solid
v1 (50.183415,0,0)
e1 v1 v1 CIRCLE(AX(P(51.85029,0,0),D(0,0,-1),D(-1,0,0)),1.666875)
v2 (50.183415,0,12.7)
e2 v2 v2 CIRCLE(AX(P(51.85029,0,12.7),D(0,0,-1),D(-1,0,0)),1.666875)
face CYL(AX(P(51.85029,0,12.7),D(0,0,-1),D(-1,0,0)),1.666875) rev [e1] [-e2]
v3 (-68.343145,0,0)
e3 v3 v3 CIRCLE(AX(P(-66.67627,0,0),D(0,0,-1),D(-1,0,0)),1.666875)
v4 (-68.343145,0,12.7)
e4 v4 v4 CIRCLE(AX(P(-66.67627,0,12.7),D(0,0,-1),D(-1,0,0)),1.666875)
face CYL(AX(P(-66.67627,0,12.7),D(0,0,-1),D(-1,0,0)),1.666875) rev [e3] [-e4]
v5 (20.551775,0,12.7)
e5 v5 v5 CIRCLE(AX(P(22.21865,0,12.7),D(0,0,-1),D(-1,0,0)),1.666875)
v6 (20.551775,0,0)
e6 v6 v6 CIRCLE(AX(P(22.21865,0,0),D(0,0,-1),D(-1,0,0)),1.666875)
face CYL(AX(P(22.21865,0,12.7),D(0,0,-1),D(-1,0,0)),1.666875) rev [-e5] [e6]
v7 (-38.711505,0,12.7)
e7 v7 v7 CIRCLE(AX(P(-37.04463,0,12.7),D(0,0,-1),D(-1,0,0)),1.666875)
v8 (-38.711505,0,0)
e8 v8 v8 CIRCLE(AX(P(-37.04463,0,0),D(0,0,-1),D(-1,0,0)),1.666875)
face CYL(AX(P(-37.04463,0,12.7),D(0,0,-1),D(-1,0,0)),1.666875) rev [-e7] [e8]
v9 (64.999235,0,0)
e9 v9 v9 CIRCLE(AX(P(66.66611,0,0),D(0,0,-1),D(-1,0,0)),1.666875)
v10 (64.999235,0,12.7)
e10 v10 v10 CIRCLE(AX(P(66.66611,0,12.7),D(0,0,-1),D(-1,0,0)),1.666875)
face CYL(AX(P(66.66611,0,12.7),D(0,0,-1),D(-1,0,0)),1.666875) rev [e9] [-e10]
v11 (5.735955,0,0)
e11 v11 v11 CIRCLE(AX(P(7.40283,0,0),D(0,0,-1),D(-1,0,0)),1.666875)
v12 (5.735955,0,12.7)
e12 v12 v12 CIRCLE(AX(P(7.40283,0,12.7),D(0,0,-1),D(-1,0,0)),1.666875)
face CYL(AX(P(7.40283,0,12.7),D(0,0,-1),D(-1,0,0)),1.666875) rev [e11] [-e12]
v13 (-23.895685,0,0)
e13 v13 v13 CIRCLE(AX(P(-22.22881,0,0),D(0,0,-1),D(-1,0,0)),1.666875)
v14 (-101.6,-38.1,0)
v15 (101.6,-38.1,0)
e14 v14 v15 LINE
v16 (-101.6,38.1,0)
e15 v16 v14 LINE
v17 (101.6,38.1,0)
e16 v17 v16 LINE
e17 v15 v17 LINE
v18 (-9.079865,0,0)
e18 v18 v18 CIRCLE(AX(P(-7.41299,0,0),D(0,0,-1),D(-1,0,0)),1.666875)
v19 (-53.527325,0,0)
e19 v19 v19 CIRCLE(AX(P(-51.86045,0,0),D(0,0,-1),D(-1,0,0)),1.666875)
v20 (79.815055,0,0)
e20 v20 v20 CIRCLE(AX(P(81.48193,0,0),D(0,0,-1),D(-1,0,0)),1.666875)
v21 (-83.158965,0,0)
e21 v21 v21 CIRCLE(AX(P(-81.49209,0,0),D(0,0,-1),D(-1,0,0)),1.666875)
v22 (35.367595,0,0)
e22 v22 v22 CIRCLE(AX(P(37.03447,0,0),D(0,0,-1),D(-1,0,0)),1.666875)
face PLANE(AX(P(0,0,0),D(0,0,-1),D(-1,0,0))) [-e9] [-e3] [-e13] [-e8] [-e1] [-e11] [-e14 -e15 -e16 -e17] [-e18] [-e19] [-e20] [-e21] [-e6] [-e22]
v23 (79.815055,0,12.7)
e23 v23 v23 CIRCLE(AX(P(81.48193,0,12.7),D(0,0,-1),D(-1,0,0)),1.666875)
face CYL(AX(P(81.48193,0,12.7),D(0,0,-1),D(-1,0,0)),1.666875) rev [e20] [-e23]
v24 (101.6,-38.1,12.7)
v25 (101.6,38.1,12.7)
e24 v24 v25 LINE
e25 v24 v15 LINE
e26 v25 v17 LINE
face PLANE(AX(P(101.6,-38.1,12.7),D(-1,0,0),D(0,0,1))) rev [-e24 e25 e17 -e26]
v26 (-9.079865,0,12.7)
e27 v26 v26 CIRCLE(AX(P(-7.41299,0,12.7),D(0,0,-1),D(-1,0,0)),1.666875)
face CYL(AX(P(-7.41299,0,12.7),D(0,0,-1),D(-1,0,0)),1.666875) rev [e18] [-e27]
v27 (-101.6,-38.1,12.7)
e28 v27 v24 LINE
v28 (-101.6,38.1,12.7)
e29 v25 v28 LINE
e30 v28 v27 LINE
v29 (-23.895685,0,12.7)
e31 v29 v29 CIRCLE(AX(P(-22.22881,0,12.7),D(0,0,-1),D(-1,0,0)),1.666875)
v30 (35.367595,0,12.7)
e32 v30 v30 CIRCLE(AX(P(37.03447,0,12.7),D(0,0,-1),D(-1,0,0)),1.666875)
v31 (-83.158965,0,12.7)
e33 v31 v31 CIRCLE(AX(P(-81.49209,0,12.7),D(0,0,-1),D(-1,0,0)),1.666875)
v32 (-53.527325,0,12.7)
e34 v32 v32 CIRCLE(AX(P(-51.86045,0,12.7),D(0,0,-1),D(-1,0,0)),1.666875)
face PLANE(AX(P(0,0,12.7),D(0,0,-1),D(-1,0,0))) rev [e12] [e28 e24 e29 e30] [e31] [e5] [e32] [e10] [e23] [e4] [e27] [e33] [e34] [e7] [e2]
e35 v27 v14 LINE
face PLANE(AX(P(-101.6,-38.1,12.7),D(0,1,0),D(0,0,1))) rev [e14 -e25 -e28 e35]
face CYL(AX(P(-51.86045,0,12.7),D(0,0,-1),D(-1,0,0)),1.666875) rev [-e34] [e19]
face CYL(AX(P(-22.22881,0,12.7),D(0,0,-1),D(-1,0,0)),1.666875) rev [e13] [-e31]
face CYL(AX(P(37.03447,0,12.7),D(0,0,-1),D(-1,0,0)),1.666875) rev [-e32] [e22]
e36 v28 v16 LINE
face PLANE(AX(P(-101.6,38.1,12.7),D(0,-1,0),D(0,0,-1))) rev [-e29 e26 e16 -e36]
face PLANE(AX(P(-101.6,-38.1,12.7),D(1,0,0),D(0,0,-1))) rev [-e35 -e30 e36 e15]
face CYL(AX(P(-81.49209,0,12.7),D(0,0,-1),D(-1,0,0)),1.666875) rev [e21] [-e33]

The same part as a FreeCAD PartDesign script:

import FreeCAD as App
import Part
import Sketcher

V = App.Vector
Q = App.Units.Quantity


def add_polygon(sketch, points):
    """Adds a closed chain of lines whose ends are joined by coincident constraints."""
    first, n = sketch.GeometryCount, len(points)
    for a, b in zip(points, points[1:] + points[:1]):
        sketch.addGeometry(Part.LineSegment(App.Vector(*a, 0), App.Vector(*b, 0)), False)
    for i in range(n):
        sketch.addConstraint(Sketcher.Constraint("Coincident", first + i, 2, first + (i + 1) % n, 1))

doc = App.newDocument("Part")
body = doc.addObject("PartDesign::Body", "Body")

sketch1 = body.newObject("Sketcher::SketchObject", "Sketch")
sketch1.AttachmentSupport = (doc.getObject("XY_Plane"), [""])
sketch1.MapMode = "FlatFace"
add_polygon(sketch1, [(-101.6, 38.1), (-101.6, -38.1), (101.6, -38.1), (101.6, 38.1)])
sketch1.addConstraint([
    Sketcher.Constraint("Vertical", 0),
    Sketcher.Constraint("Horizontal", 1),
    Sketcher.Constraint("Vertical", 2),
    Sketcher.Constraint("Horizontal", 3),
    Sketcher.Constraint("Symmetric", 0, 2, 2, 2, -1, 1),
    Sketcher.Constraint("DistanceX", 1, 1, 1, 2, Q("8 in")),
    Sketcher.Constraint("DistanceY", 0, 2, 0, 1, Q("3 in")),
])
pad1 = body.newObject("PartDesign::Pad", "Pad")
pad1.Profile = sketch1
pad1.Length = Q("0.5 in")

sketch2 = body.newObject("Sketcher::SketchObject", "Sketch001")
sketch2.AttachmentSupport = (doc.getObject("XY_Plane"), [""])
sketch2.MapMode = "FlatFace"
sketch2.addGeometry([
    Part.Circle(V(-81.49209, 0, 0), V(0, 0, 1), 1.666875),
    Part.Circle(V(-66.67627, 0, 0), V(0, 0, 1), 1.666875),
    Part.Circle(V(-51.86045, 0, 0), V(0, 0, 1), 1.666875),
    Part.Circle(V(-37.04463, 0, 0), V(0, 0, 1), 1.666875),
    Part.Circle(V(-22.22881, 0, 0), V(0, 0, 1), 1.666875),
    Part.Circle(V(-7.41299, 0, 0), V(0, 0, 1), 1.666875),
    Part.Circle(V(7.40283, 0, 0), V(0, 0, 1), 1.666875),
    Part.Circle(V(22.21865, 0, 0), V(0, 0, 1), 1.666875),
    Part.Circle(V(37.03447, 0, 0), V(0, 0, 1), 1.666875),
    Part.Circle(V(51.85029, 0, 0), V(0, 0, 1), 1.666875),
    Part.Circle(V(66.66611, 0, 0), V(0, 0, 1), 1.666875),
    Part.Circle(V(81.48193, 0, 0), V(0, 0, 1), 1.666875),
], False)
sketch2.addConstraint([
    Sketcher.Constraint("Equal", 0, 1),
    Sketcher.Constraint("Equal", 1, 2),
    Sketcher.Constraint("Equal", 2, 3),
    Sketcher.Constraint("Equal", 3, 4),
    Sketcher.Constraint("Equal", 4, 5),
    Sketcher.Constraint("Equal", 5, 6),
    Sketcher.Constraint("Equal", 6, 7),
    Sketcher.Constraint("Equal", 7, 8),
    Sketcher.Constraint("Equal", 8, 9),
    Sketcher.Constraint("Equal", 9, 10),
    Sketcher.Constraint("Equal", 10, 11),
    Sketcher.Constraint("PointOnObject", 0, 3, -1),
    Sketcher.Constraint("PointOnObject", 1, 3, -1),
    Sketcher.Constraint("PointOnObject", 2, 3, -1),
    Sketcher.Constraint("PointOnObject", 3, 3, -1),
    Sketcher.Constraint("PointOnObject", 4, 3, -1),
    Sketcher.Constraint("PointOnObject", 5, 3, -1),
    Sketcher.Constraint("PointOnObject", 6, 3, -1),
    Sketcher.Constraint("PointOnObject", 7, 3, -1),
    Sketcher.Constraint("PointOnObject", 8, 3, -1),
    Sketcher.Constraint("PointOnObject", 9, 3, -1),
    Sketcher.Constraint("PointOnObject", 10, 3, -1),
    Sketcher.Constraint("PointOnObject", 11, 3, -1),
    Sketcher.Constraint("Diameter", 0, Q("3.33375 mm")),
    Sketcher.Constraint("DistanceX", 0, 3, 1, 3, Q("0.5833 in")),
    Sketcher.Constraint("DistanceX", 1, 3, 2, 3, Q("0.5833 in")),
    Sketcher.Constraint("DistanceX", 2, 3, 3, 3, Q("0.5833 in")),
    Sketcher.Constraint("DistanceX", 3, 3, 4, 3, Q("0.5833 in")),
    Sketcher.Constraint("DistanceX", 4, 3, 5, 3, Q("0.5833 in")),
    Sketcher.Constraint("DistanceX", 5, 3, 6, 3, Q("0.5833 in")),
    Sketcher.Constraint("DistanceX", 6, 3, 7, 3, Q("0.5833 in")),
    Sketcher.Constraint("DistanceX", 7, 3, 8, 3, Q("0.5833 in")),
    Sketcher.Constraint("DistanceX", 8, 3, 9, 3, Q("0.5833 in")),
    Sketcher.Constraint("DistanceX", 9, 3, 10, 3, Q("0.5833 in")),
    Sketcher.Constraint("DistanceX", 10, 3, 11, 3, Q("0.5833 in")),
    Sketcher.Constraint("DistanceX", 0, 3, -1, 1, Q("81.49209 mm")),
])
pocket1 = body.newObject("PartDesign::Pocket", "Pocket")
pocket1.Profile = sketch2
pocket1.Type = "ThroughAll"
pocket1.Reversed = True

doc.recompute()
